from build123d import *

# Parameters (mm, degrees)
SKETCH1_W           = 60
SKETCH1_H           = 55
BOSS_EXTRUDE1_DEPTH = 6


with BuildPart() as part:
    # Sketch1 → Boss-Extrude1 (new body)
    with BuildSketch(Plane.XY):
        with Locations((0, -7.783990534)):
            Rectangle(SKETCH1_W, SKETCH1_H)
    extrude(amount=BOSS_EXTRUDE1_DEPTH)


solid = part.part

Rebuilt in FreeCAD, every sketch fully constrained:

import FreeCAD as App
import Part
import Sketcher
from FreeCAD import Vector

doc = App.newDocument("Part")
body = doc.addObject("PartDesign::Body", "Body")

# Sketch on XY plane
sketch1 = doc.addObject("Sketcher::SketchObject", "Sketch")
body.addObject(sketch1)
sketch1.AttachmentSupport = (doc.XY_Plane, [""])
sketch1.MapMode = "FlatFace"
sketch1.addGeometry(Part.LineSegment(Vector(-30, 20, 0), Vector(-30, -35, 0)), False)
sketch1.addGeometry(Part.LineSegment(Vector(-30, -35, 0), Vector(30, -35, 0)), False)
sketch1.addGeometry(Part.LineSegment(Vector(30, -35, 0), Vector(30, 20, 0)), False)
sketch1.addGeometry(Part.LineSegment(Vector(30, 20, 0), Vector(-30, 20, 0)), False)
sketch1.addConstraint(Sketcher.Constraint("Coincident", 0, 2, 1, 1))
sketch1.addConstraint(Sketcher.Constraint("Coincident", 1, 2, 2, 1))
sketch1.addConstraint(Sketcher.Constraint("Coincident", 2, 2, 3, 1))
sketch1.addConstraint(Sketcher.Constraint("Coincident", 3, 2, 0, 1))
sketch1.addConstraint(Sketcher.Constraint("Vertical", 0))
sketch1.addConstraint(Sketcher.Constraint("Horizontal", 1))
sketch1.addConstraint(Sketcher.Constraint("Vertical", 2))
sketch1.addConstraint(Sketcher.Constraint("Horizontal", 3))
sketch1.addConstraint(Sketcher.Constraint("DistanceX", 1, 1, 1, 2, 60.0))
sketch1.addConstraint(Sketcher.Constraint("DistanceY", 0, 2, 0, 1, 55.0))
sketch1.addConstraint(Sketcher.Constraint("DistanceX", 0, 2, -1, 1, 30.0))
sketch1.addConstraint(Sketcher.Constraint("DistanceY", 0, 2, -1, 1, 35.283991))
pad1 = doc.addObject("PartDesign::Pad", "Pad")
body.addObject(pad1)
pad1.Profile = sketch1
pad1.Length = 6

doc.recompute()
